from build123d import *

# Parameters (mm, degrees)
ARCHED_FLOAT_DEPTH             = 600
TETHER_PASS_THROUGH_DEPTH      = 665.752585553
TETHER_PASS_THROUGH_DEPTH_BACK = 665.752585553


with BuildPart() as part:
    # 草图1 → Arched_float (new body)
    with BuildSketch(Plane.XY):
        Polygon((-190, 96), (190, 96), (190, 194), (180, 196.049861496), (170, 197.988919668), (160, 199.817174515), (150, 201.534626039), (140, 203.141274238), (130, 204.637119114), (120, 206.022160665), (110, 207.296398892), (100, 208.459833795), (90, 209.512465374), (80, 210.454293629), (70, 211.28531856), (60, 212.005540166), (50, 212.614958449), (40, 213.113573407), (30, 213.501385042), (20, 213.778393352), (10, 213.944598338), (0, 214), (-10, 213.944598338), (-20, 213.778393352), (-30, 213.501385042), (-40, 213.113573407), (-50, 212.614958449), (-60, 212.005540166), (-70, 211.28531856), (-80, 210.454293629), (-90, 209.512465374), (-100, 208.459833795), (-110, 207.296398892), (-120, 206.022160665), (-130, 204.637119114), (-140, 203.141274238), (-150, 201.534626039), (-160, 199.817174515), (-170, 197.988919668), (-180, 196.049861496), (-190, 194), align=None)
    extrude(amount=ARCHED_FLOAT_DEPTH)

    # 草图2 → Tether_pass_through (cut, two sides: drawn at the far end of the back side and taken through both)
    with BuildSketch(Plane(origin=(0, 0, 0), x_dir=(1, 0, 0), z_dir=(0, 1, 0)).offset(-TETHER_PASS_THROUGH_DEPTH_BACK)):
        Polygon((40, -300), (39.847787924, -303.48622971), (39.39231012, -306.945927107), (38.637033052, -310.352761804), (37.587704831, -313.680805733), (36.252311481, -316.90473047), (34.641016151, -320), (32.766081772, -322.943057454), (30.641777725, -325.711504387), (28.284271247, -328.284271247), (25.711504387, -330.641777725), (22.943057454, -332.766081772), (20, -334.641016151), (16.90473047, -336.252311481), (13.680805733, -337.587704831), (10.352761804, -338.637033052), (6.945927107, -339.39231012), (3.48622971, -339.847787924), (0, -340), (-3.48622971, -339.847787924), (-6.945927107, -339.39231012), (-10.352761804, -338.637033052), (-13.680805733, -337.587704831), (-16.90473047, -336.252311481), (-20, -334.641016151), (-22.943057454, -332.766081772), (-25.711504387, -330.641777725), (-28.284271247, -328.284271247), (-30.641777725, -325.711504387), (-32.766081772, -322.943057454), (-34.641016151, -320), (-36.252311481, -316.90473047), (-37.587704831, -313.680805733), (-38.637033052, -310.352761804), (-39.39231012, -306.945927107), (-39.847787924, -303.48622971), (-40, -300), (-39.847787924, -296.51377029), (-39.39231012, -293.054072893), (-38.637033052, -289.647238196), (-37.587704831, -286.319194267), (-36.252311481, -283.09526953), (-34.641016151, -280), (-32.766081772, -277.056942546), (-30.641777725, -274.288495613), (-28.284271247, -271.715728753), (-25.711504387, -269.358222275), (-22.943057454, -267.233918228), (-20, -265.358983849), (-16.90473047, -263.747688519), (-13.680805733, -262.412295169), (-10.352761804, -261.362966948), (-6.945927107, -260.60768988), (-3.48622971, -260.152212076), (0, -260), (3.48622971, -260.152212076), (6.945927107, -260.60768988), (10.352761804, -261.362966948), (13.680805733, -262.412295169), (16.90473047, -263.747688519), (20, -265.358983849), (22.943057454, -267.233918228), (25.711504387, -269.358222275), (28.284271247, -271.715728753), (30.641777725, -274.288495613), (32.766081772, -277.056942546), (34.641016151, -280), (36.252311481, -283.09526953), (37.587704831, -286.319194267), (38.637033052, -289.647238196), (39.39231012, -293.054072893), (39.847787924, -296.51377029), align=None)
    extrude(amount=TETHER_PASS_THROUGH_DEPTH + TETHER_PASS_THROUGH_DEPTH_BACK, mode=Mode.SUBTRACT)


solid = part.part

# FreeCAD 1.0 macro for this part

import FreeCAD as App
import Part
import Sketcher

V = App.Vector
Q = App.Units.Quantity

doc = App.newDocument("Part")
body = doc.addObject("PartDesign::Body", "Body")

sketch1 = body.newObject("Sketcher::SketchObject", "Sketch")
sketch1.AttachmentSupport = (doc.getObject("XY_Plane"), [""])
sketch1.MapMode = "FlatFace"
sketch1.addGeometry(Part.LineSegment(V(-190, 96, 0), V(190, 96, 0)), False)
sketch1.addGeometry(Part.LineSegment(V(190, 96, 0), V(190, 194, 0)), False)
sketch1.addGeometry(Part.LineSegment(V(190, 194, 0), V(180, 196.049861, 0)), False)
sketch1.addGeometry(Part.LineSegment(V(180, 196.049861, 0), V(170, 197.98892, 0)), False)
sketch1.addGeometry(Part.LineSegment(V(170, 197.98892, 0), V(160, 199.817175, 0)), False)
sketch1.addGeometry(Part.LineSegment(V(160, 199.817175, 0), V(150, 201.534626, 0)), False)
sketch1.addGeometry(Part.LineSegment(V(150, 201.534626, 0), V(140, 203.141274, 0)), False)
sketch1.addGeometry(Part.LineSegment(V(140, 203.141274, 0), V(130, 204.637119, 0)), False)
sketch1.addGeometry(Part.LineSegment(V(130, 204.637119, 0), V(120, 206.022161, 0)), False)
sketch1.addGeometry(Part.LineSegment(V(120, 206.022161, 0), V(110, 207.296399, 0)), False)
sketch1.addGeometry(Part.LineSegment(V(110, 207.296399, 0), V(100, 208.459834, 0)), False)
sketch1.addGeometry(Part.LineSegment(V(100, 208.459834, 0), V(90, 209.512465, 0)), False)
sketch1.addGeometry(Part.LineSegment(V(90, 209.512465, 0), V(80, 210.454294, 0)), False)
sketch1.addGeometry(Part.LineSegment(V(80, 210.454294, 0), V(70, 211.285319, 0)), False)
sketch1.addGeometry(Part.LineSegment(V(70, 211.285319, 0), V(60, 212.00554, 0)), False)
sketch1.addGeometry(Part.LineSegment(V(60, 212.00554, 0), V(50, 212.614958, 0)), False)
sketch1.addGeometry(Part.LineSegment(V(50, 212.614958, 0), V(40, 213.113573, 0)), False)
sketch1.addGeometry(Part.LineSegment(V(40, 213.113573, 0), V(30, 213.501385, 0)), False)
sketch1.addGeometry(Part.LineSegment(V(30, 213.501385, 0), V(20, 213.778393, 0)), False)
sketch1.addGeometry(Part.LineSegment(V(20, 213.778393, 0), V(10, 213.944598, 0)), False)
sketch1.addGeometry(Part.LineSegment(V(10, 213.944598, 0), V(0, 214, 0)), False)
sketch1.addGeometry(Part.LineSegment(V(0, 214, 0), V(-10, 213.944598, 0)), False)
sketch1.addGeometry(Part.LineSegment(V(-10, 213.944598, 0), V(-20, 213.778393, 0)), False)
sketch1.addGeometry(Part.LineSegment(V(-20, 213.778393, 0), V(-30, 213.501385, 0)), False)
sketch1.addGeometry(Part.LineSegment(V(-30, 213.501385, 0), V(-40, 213.113573, 0)), False)
sketch1.addGeometry(Part.LineSegment(V(-40, 213.113573, 0), V(-50, 212.614958, 0)), False)
sketch1.addGeometry(Part.LineSegment(V(-50, 212.614958, 0), V(-60, 212.00554, 0)), False)
sketch1.addGeometry(Part.LineSegment(V(-60, 212.00554, 0), V(-70, 211.285319, 0)), False)
sketch1.addGeometry(Part.LineSegment(V(-70, 211.285319, 0), V(-80, 210.454294, 0)), False)
sketch1.addGeometry(Part.LineSegment(V(-80, 210.454294, 0), V(-90, 209.512465, 0)), False)
sketch1.addGeometry(Part.LineSegment(V(-90, 209.512465, 0), V(-100, 208.459834, 0)), False)
sketch1.addGeometry(Part.LineSegment(V(-100, 208.459834, 0), V(-110, 207.296399, 0)), False)
sketch1.addGeometry(Part.LineSegment(V(-110, 207.296399, 0), V(-120, 206.022161, 0)), False)
sketch1.addGeometry(Part.LineSegment(V(-120, 206.022161, 0), V(-130, 204.637119, 0)), False)
sketch1.addGeometry(Part.LineSegment(V(-130, 204.637119, 0), V(-140, 203.141274, 0)), False)
sketch1.addGeometry(Part.LineSegment(V(-140, 203.141274, 0), V(-150, 201.534626, 0)), False)
sketch1.addGeometry(Part.LineSegment(V(-150, 201.534626, 0), V(-160, 199.817175, 0)), False)
sketch1.addGeometry(Part.LineSegment(V(-160, 199.817175, 0), V(-170, 197.98892, 0)), False)
sketch1.addGeometry(Part.LineSegment(V(-170, 197.98892, 0), V(-180, 196.049861, 0)), False)
sketch1.addGeometry(Part.LineSegment(V(-180, 196.049861, 0), V(-190, 194, 0)), False)
sketch1.addGeometry(Part.LineSegment(V(-190, 194, 0), V(-190, 96, 0)), False)
sketch1.addConstraint(Sketcher.Constraint("Coincident", 0, 2, 1, 1))
sketch1.addConstraint(Sketcher.Constraint("Coincident", 1, 2, 2, 1))
sketch1.addConstraint(Sketcher.Constraint("Coincident", 2, 2, 3, 1))
sketch1.addConstraint(Sketcher.Constraint("Coincident", 3, 2, 4, 1))
sketch1.addConstraint(Sketcher.Constraint("Coincident", 4, 2, 5, 1))
sketch1.addConstraint(Sketcher.Constraint("Coincident", 5, 2, 6, 1))
sketch1.addConstraint(Sketcher.Constraint("Coincident", 6, 2, 7, 1))
sketch1.addConstraint(Sketcher.Constraint("Coincident", 7, 2, 8, 1))
sketch1.addConstraint(Sketcher.Constraint("Coincident", 8, 2, 9, 1))
sketch1.addConstraint(Sketcher.Constraint("Coincident", 9, 2, 10, 1))
sketch1.addConstraint(Sketcher.Constraint("Coincident", 10, 2, 11, 1))
sketch1.addConstraint(Sketcher.Constraint("Coincident", 11, 2, 12, 1))
sketch1.addConstraint(Sketcher.Constraint("Coincident", 12, 2, 13, 1))
sketch1.addConstraint(Sketcher.Constraint("Coincident", 13, 2, 14, 1))
sketch1.addConstraint(Sketcher.Constraint("Coincident", 14, 2, 15, 1))
sketch1.addConstraint(Sketcher.Constraint("Coincident", 15, 2, 16, 1))
sketch1.addConstraint(Sketcher.Constraint("Coincident", 16, 2, 17, 1))
sketch1.addConstraint(Sketcher.Constraint("Coincident", 17, 2, 18, 1))
sketch1.addConstraint(Sketcher.Constraint("Coincident", 18, 2, 19, 1))
sketch1.addConstraint(Sketcher.Constraint("Coincident", 19, 2, 20, 1))
sketch1.addConstraint(Sketcher.Constraint("Coincident", 20, 2, 21, 1))
sketch1.addConstraint(Sketcher.Constraint("Coincident", 21, 2, 22, 1))
sketch1.addConstraint(Sketcher.Constraint("Coincident", 22, 2, 23, 1))
sketch1.addConstraint(Sketcher.Constraint("Coincident", 23, 2, 24, 1))
sketch1.addConstraint(Sketcher.Constraint("Coincident", 24, 2, 25, 1))
sketch1.addConstraint(Sketcher.Constraint("Coincident", 25, 2, 26, 1))
sketch1.addConstraint(Sketcher.Constraint("Coincident", 26, 2, 27, 1))
sketch1.addConstraint(Sketcher.Constraint("Coincident", 27, 2, 28, 1))
sketch1.addConstraint(Sketcher.Constraint("Coincident", 28, 2, 29, 1))
sketch1.addConstraint(Sketcher.Constraint("Coincident", 29, 2, 30, 1))
sketch1.addConstraint(Sketcher.Constraint("Coincident", 30, 2, 31, 1))
sketch1.addConstraint(Sketcher.Constraint("Coincident", 31, 2, 32, 1))
sketch1.addConstraint(Sketcher.Constraint("Coincident", 32, 2, 33, 1))
sketch1.addConstraint(Sketcher.Constraint("Coincident", 33, 2, 34, 1))
sketch1.addConstraint(Sketcher.Constraint("Coincident", 34, 2, 35, 1))
sketch1.addConstraint(Sketcher.Constraint("Coincident", 35, 2, 36, 1))
sketch1.addConstraint(Sketcher.Constraint("Coincident", 36, 2, 37, 1))
sketch1.addConstraint(Sketcher.Constraint("Coincident", 37, 2, 38, 1))
sketch1.addConstraint(Sketcher.Constraint("Coincident", 38, 2, 39, 1))
sketch1.addConstraint(Sketcher.Constraint("Coincident", 39, 2, 40, 1))
sketch1.addConstraint(Sketcher.Constraint("Coincident", 40, 2, 0, 1))
sketch1.addConstraint(Sketcher.Constraint("Horizontal", 0))
sketch1.addConstraint(Sketcher.Constraint("Vertical", 1))
sketch1.addConstraint(Sketcher.Constraint("Vertical", 40))
sketch1.addConstraint(Sketcher.Constraint("Symmetric", 19, 2, 21, 2, -2))
sketch1.addConstraint(Sketcher.Constraint("Symmetric", 18, 2, 22, 2, -2))
sketch1.addConstraint(Sketcher.Constraint("Symmetric", 17, 2, 23, 2, -2))
sketch1.addConstraint(Sketcher.Constraint("Symmetric", 16, 2, 24, 2, -2))
sketch1.addConstraint(Sketcher.Constraint("Symmetric", 15, 2, 25, 2, -2))
sketch1.addConstraint(Sketcher.Constraint("Symmetric", 14, 2, 26, 2, -2))
sketch1.addConstraint(Sketcher.Constraint("Symmetric", 13, 2, 27, 2, -2))
sketch1.addConstraint(Sketcher.Constraint("Symmetric", 12, 2, 28, 2, -2))
sketch1.addConstraint(Sketcher.Constraint("Symmetric", 11, 2, 29, 2, -2))
sketch1.addConstraint(Sketcher.Constraint("Symmetric", 10, 2, 30, 2, -2))
sketch1.addConstraint(Sketcher.Constraint("Symmetric", 9, 2, 31, 2, -2))
sketch1.addConstraint(Sketcher.Constraint("Symmetric", 8, 2, 32, 2, -2))
sketch1.addConstraint(Sketcher.Constraint("Symmetric", 7, 2, 33, 2, -2))
sketch1.addConstraint(Sketcher.Constraint("Symmetric", 6, 2, 34, 2, -2))
sketch1.addConstraint(Sketcher.Constraint("Symmetric", 5, 2, 35, 2, -2))
sketch1.addConstraint(Sketcher.Constraint("Symmetric", 4, 2, 36, 2, -2))
sketch1.addConstraint(Sketcher.Constraint("Symmetric", 3, 2, 37, 2, -2))
sketch1.addConstraint(Sketcher.Constraint("Symmetric", 2, 2, 38, 2, -2))
sketch1.addConstraint(Sketcher.Constraint("Symmetric", 1, 2, 39, 2, -2))
sketch1.addConstraint(Sketcher.Constraint("PointOnObject", 20, 2, -2))
sketch1.addConstraint(Sketcher.Constraint("DistanceX", 0, 1, 0, 2, 380.0))
sketch1.addConstraint(Sketcher.Constraint("DistanceY", 1, 1, 1, 2, 98.0))
sketch1.addConstraint(Sketcher.Constraint("DistanceY", -1, 1, 0, 2, 96.0))
sketch1.addConstraint(Sketcher.Constraint("DistanceX", -1, 1, 2, 2, 180.0))
sketch1.addConstraint(Sketcher.Constraint("DistanceX", -1, 1, 3, 2, 170.0))
sketch1.addConstraint(Sketcher.Constraint("DistanceX", -1, 1, 4, 2, 160.0))
sketch1.addConstraint(Sketcher.Constraint("DistanceX", -1, 1, 5, 2, 150.0))
sketch1.addConstraint(Sketcher.Constraint("DistanceX", -1, 1, 6, 2, 140.0))
sketch1.addConstraint(Sketcher.Constraint("DistanceX", -1, 1, 7, 2, 130.0))
sketch1.addConstraint(Sketcher.Constraint("DistanceX", -1, 1, 8, 2, 120.0))
sketch1.addConstraint(Sketcher.Constraint("DistanceX", -1, 1, 9, 2, 110.0))
sketch1.addConstraint(Sketcher.Constraint("DistanceX", -1, 1, 10, 2, 100.0))
sketch1.addConstraint(Sketcher.Constraint("DistanceX", -1, 1, 11, 2, 90.0))
sketch1.addConstraint(Sketcher.Constraint("DistanceX", -1, 1, 12, 2, 80.0))
sketch1.addConstraint(Sketcher.Constraint("DistanceX", -1, 1, 13, 2, 70.0))
sketch1.addConstraint(Sketcher.Constraint("DistanceX", -1, 1, 14, 2, 60.0))
sketch1.addConstraint(Sketcher.Constraint("DistanceX", -1, 1, 15, 2, 50.0))
sketch1.addConstraint(Sketcher.Constraint("DistanceX", -1, 1, 16, 2, 40.0))
sketch1.addConstraint(Sketcher.Constraint("DistanceX", -1, 1, 17, 2, 30.0))
sketch1.addConstraint(Sketcher.Constraint("DistanceX", -1, 1, 18, 2, 20.0))
sketch1.addConstraint(Sketcher.Constraint("DistanceX", -1, 1, 19, 2, 10.0))
sketch1.addConstraint(Sketcher.Constraint("DistanceY", -1, 1, 20, 2, 214.0))
sketch1.addConstraint(Sketcher.Constraint("DistanceY", -1, 1, 9, 2, 207.296399))
sketch1.addConstraint(Sketcher.Constraint("DistanceY", -1, 1, 19, 2, 213.944598))
sketch1.addConstraint(Sketcher.Constraint("DistanceY", 4, 2, 6, 2, 3.3241))
sketch1.addConstraint(Sketcher.Constraint("DistanceY", 3, 2, 7, 2, 6.648199))
sketch1.addConstraint(Sketcher.Constraint("Distance", 5, 10.14641))
sketch1.addConstraint(Sketcher.Constraint("Distance", 7, 10.111259))
sketch1.addConstraint(Sketcher.Constraint("Distance", 8, 10.095461))
sketch1.addConstraint(Sketcher.Constraint("Distance", 10, 10.067452))
sketch1.addConstraint(Sketcher.Constraint("Distance", 11, 10.055249))
sketch1.addConstraint(Sketcher.Constraint("Distance", 13, 10.034471))
sketch1.addConstraint(Sketcher.Constraint("Distance", 19, 10.001381))
sketch1.addConstraint(Sketcher.Constraint("DistanceY", -1, 1, 2, 2, 196.049861))
sketch1.addConstraint(Sketcher.Constraint("DistanceY", -1, 1, 3, 2, 197.98892))
sketch1.addConstraint(Sketcher.Constraint("DistanceY", -1, 1, 13, 2, 211.285319))
sketch1.addConstraint(Sketcher.Constraint("DistanceY", -1, 1, 14, 2, 212.00554))
sketch1.addConstraint(Sketcher.Constraint("DistanceY", -1, 1, 15, 2, 212.614958))
sketch1.addConstraint(Sketcher.Constraint("DistanceY", 12, 2, 16, 2, 2.65928))
sketch1.addConstraint(Sketcher.Constraint("DistanceY", 16, 2, 17, 2, 0.387812))
pad1 = body.newObject("PartDesign::Pad", "Pad")
pad1.Profile = sketch1
pad1.Length = 600

sketch2 = body.newObject("Sketcher::SketchObject", "Sketch001")
sketch2.AttachmentSupport = (doc.getObject("XZ_Plane"), [""])
sketch2.MapMode = "FlatFace"
sketch2.addGeometry(Part.LineSegment(V(39.847788, 303.48623, 0), V(40, 300, 0)), False)
sketch2.addGeometry(Part.LineSegment(V(40, 300, 0), V(39.847788, 296.51377, 0)), False)
sketch2.addGeometry(Part.LineSegment(V(39.847788, 296.51377, 0), V(39.39231, 293.054073, 0)), False)
sketch2.addGeometry(Part.LineSegment(V(39.39231, 293.054073, 0), V(38.637033, 289.647238, 0)), False)
sketch2.addGeometry(Part.LineSegment(V(38.637033, 289.647238, 0), V(37.587705, 286.319194, 0)), False)
sketch2.addGeometry(Part.LineSegment(V(37.587705, 286.319194, 0), V(36.252311, 283.09527, 0)), False)
sketch2.addGeometry(Part.LineSegment(V(36.252311, 283.09527, 0), V(34.641016, 280, 0)), False)
sketch2.addGeometry(Part.LineSegment(V(34.641016, 280, 0), V(32.766082, 277.056943, 0)), False)
sketch2.addGeometry(Part.LineSegment(V(32.766082, 277.056943, 0), V(30.641778, 274.288496, 0)), False)
sketch2.addGeometry(Part.LineSegment(V(30.641778, 274.288496, 0), V(28.284271, 271.715729, 0)), False)
sketch2.addGeometry(Part.LineSegment(V(28.284271, 271.715729, 0), V(25.711504, 269.358222, 0)), False)
sketch2.addGeometry(Part.LineSegment(V(25.711504, 269.358222, 0), V(22.943057, 267.233918, 0)), False)
sketch2.addGeometry(Part.LineSegment(V(22.943057, 267.233918, 0), V(20, 265.358984, 0)), False)
sketch2.addGeometry(Part.LineSegment(V(20, 265.358984, 0), V(16.90473, 263.747689, 0)), False)
sketch2.addGeometry(Part.LineSegment(V(16.90473, 263.747689, 0), V(13.680806, 262.412295, 0)), False)
sketch2.addGeometry(Part.LineSegment(V(13.680806, 262.412295, 0), V(10.352762, 261.362967, 0)), False)
sketch2.addGeometry(Part.LineSegment(V(10.352762, 261.362967, 0), V(6.945927, 260.60769, 0)), False)
sketch2.addGeometry(Part.LineSegment(V(6.945927, 260.60769, 0), V(3.48623, 260.152212, 0)), False)
sketch2.addGeometry(Part.LineSegment(V(3.48623, 260.152212, 0), V(0, 260, 0)), False)
sketch2.addGeometry(Part.LineSegment(V(0, 260, 0), V(-3.48623, 260.152212, 0)), False)
sketch2.addGeometry(Part.LineSegment(V(-3.48623, 260.152212, 0), V(-6.945927, 260.60769, 0)), False)
sketch2.addGeometry(Part.LineSegment(V(-6.945927, 260.60769, 0), V(-10.352762, 261.362967, 0)), False)
sketch2.addGeometry(Part.LineSegment(V(-10.352762, 261.362967, 0), V(-13.680806, 262.412295, 0)), False)
sketch2.addGeometry(Part.LineSegment(V(-13.680806, 262.412295, 0), V(-16.90473, 263.747689, 0)), False)
sketch2.addGeometry(Part.LineSegment(V(-16.90473, 263.747689, 0), V(-20, 265.358984, 0)), False)
sketch2.addGeometry(Part.LineSegment(V(-20, 265.358984, 0), V(-22.943057, 267.233918, 0)), False)
sketch2.addGeometry(Part.LineSegment(V(-22.943057, 267.233918, 0), V(-25.711504, 269.358222, 0)), False)
sketch2.addGeometry(Part.LineSegment(V(-25.711504, 269.358222, 0), V(-28.284271, 271.715729, 0)), False)
sketch2.addGeometry(Part.LineSegment(V(-28.284271, 271.715729, 0), V(-30.641778, 274.288496, 0)), False)
sketch2.addGeometry(Part.LineSegment(V(-30.641778, 274.288496, 0), V(-32.766082, 277.056943, 0)), False)
sketch2.addGeometry(Part.LineSegment(V(-32.766082, 277.056943, 0), V(-34.641016, 280, 0)), False)
sketch2.addGeometry(Part.LineSegment(V(-34.641016, 280, 0), V(-36.252311, 283.09527, 0)), False)
sketch2.addGeometry(Part.LineSegment(V(-36.252311, 283.09527, 0), V(-37.587705, 286.319194, 0)), False)
sketch2.addGeometry(Part.LineSegment(V(-37.587705, 286.319194, 0), V(-38.637033, 289.647238, 0)), False)
sketch2.addGeometry(Part.LineSegment(V(-38.637033, 289.647238, 0), V(-39.39231, 293.054073, 0)), False)
sketch2.addGeometry(Part.LineSegment(V(-39.39231, 293.054073, 0), V(-39.847788, 296.51377, 0)), False)
sketch2.addGeometry(Part.LineSegment(V(-39.847788, 296.51377, 0), V(-40, 300, 0)), False)
sketch2.addGeometry(Part.LineSegment(V(-40, 300, 0), V(-39.847788, 303.48623, 0)), False)
sketch2.addGeometry(Part.LineSegment(V(-39.847788, 303.48623, 0), V(-39.39231, 306.945927, 0)), False)
sketch2.addGeometry(Part.LineSegment(V(-39.39231, 306.945927, 0), V(-38.637033, 310.352762, 0)), False)
sketch2.addGeometry(Part.LineSegment(V(-38.637033, 310.352762, 0), V(-37.587705, 313.680806, 0)), False)
sketch2.addGeometry(Part.LineSegment(V(-37.587705, 313.680806, 0), V(-36.252311, 316.90473, 0)), False)
sketch2.addGeometry(Part.LineSegment(V(-36.252311, 316.90473, 0), V(-34.641016, 320, 0)), False)
sketch2.addGeometry(Part.LineSegment(V(-34.641016, 320, 0), V(-32.766082, 322.943057, 0)), False)
sketch2.addGeometry(Part.LineSegment(V(-32.766082, 322.943057, 0), V(-30.641778, 325.711504, 0)), False)
sketch2.addGeometry(Part.LineSegment(V(-30.641778, 325.711504, 0), V(-28.284271, 328.284271, 0)), False)
sketch2.addGeometry(Part.LineSegment(V(-28.284271, 328.284271, 0), V(-25.711504, 330.641778, 0)), False)
sketch2.addGeometry(Part.LineSegment(V(-25.711504, 330.641778, 0), V(-22.943057, 332.766082, 0)), False)
sketch2.addGeometry(Part.LineSegment(V(-22.943057, 332.766082, 0), V(-20, 334.641016, 0)), False)
sketch2.addGeometry(Part.LineSegment(V(-20, 334.641016, 0), V(-16.90473, 336.252311, 0)), False)
sketch2.addGeometry(Part.LineSegment(V(-16.90473, 336.252311, 0), V(-13.680806, 337.587705, 0)), False)
sketch2.addGeometry(Part.LineSegment(V(-13.680806, 337.587705, 0), V(-10.352762, 338.637033, 0)), False)
sketch2.addGeometry(Part.LineSegment(V(-10.352762, 338.637033, 0), V(-6.945927, 339.39231, 0)), False)
sketch2.addGeometry(Part.LineSegment(V(-6.945927, 339.39231, 0), V(-3.48623, 339.847788, 0)), False)
sketch2.addGeometry(Part.LineSegment(V(-3.48623, 339.847788, 0), V(0, 340, 0)), False)
sketch2.addGeometry(Part.LineSegment(V(0, 340, 0), V(3.48623, 339.847788, 0)), False)
sketch2.addGeometry(Part.LineSegment(V(3.48623, 339.847788, 0), V(6.945927, 339.39231, 0)), False)
sketch2.addGeometry(Part.LineSegment(V(6.945927, 339.39231, 0), V(10.352762, 338.637033, 0)), False)
sketch2.addGeometry(Part.LineSegment(V(10.352762, 338.637033, 0), V(13.680806, 337.587705, 0)), False)
sketch2.addGeometry(Part.LineSegment(V(13.680806, 337.587705, 0), V(16.90473, 336.252311, 0)), False)
sketch2.addGeometry(Part.LineSegment(V(16.90473, 336.252311, 0), V(20, 334.641016, 0)), False)
sketch2.addGeometry(Part.LineSegment(V(20, 334.641016, 0), V(22.943057, 332.766082, 0)), False)
sketch2.addGeometry(Part.LineSegment(V(22.943057, 332.766082, 0), V(25.711504, 330.641778, 0)), False)
sketch2.addGeometry(Part.LineSegment(V(25.711504, 330.641778, 0), V(28.284271, 328.284271, 0)), False)
sketch2.addGeometry(Part.LineSegment(V(28.284271, 328.284271, 0), V(30.641778, 325.711504, 0)), False)
sketch2.addGeometry(Part.LineSegment(V(30.641778, 325.711504, 0), V(32.766082, 322.943057, 0)), False)
sketch2.addGeometry(Part.LineSegment(V(32.766082, 322.943057, 0), V(34.641016, 320, 0)), False)
sketch2.addGeometry(Part.LineSegment(V(34.641016, 320, 0), V(36.252311, 316.90473, 0)), False)
sketch2.addGeometry(Part.LineSegment(V(36.252311, 316.90473, 0), V(37.587705, 313.680806, 0)), False)
sketch2.addGeometry(Part.LineSegment(V(37.587705, 313.680806, 0), V(38.637033, 310.352762, 0)), False)
sketch2.addGeometry(Part.LineSegment(V(38.637033, 310.352762, 0), V(39.39231, 306.945927, 0)), False)
sketch2.addGeometry(Part.LineSegment(V(39.39231, 306.945927, 0), V(39.847788, 303.48623, 0)), False)
sketch2.addConstraint(Sketcher.Constraint("Coincident", 0, 2, 1, 1))
sketch2.addConstraint(Sketcher.Constraint("Coincident", 1, 2, 2, 1))
sketch2.addConstraint(Sketcher.Constraint("Coincident", 2, 2, 3, 1))
sketch2.addConstraint(Sketcher.Constraint("Coincident", 3, 2, 4, 1))
sketch2.addConstraint(Sketcher.Constraint("Coincident", 4, 2, 5, 1))
sketch2.addConstraint(Sketcher.Constraint("Coincident", 5, 2, 6, 1))
sketch2.addConstraint(Sketcher.Constraint("Coincident", 6, 2, 7, 1))
sketch2.addConstraint(Sketcher.Constraint("Coincident", 7, 2, 8, 1))
sketch2.addConstraint(Sketcher.Constraint("Coincident", 8, 2, 9, 1))
sketch2.addConstraint(Sketcher.Constraint("Coincident", 9, 2, 10, 1))
sketch2.addConstraint(Sketcher.Constraint("Coincident", 10, 2, 11, 1))
sketch2.addConstraint(Sketcher.Constraint("Coincident", 11, 2, 12, 1))
sketch2.addConstraint(Sketcher.Constraint("Coincident", 12, 2, 13, 1))
sketch2.addConstraint(Sketcher.Constraint("Coincident", 13, 2, 14, 1))
sketch2.addConstraint(Sketcher.Constraint("Coincident", 14, 2, 15, 1))
sketch2.addConstraint(Sketcher.Constraint("Coincident", 15, 2, 16, 1))
sketch2.addConstraint(Sketcher.Constraint("Coincident", 16, 2, 17, 1))
sketch2.addConstraint(Sketcher.Constraint("Coincident", 17, 2, 18, 1))
sketch2.addConstraint(Sketcher.Constraint("Coincident", 18, 2, 19, 1))
sketch2.addConstraint(Sketcher.Constraint("Coincident", 19, 2, 20, 1))
sketch2.addConstraint(Sketcher.Constraint("Coincident", 20, 2, 21, 1))
sketch2.addConstraint(Sketcher.Constraint("Coincident", 21, 2, 22, 1))
sketch2.addConstraint(Sketcher.Constraint("Coincident", 22, 2, 23, 1))
sketch2.addConstraint(Sketcher.Constraint("Coincident", 23, 2, 24, 1))
sketch2.addConstraint(Sketcher.Constraint("Coincident", 24, 2, 25, 1))
sketch2.addConstraint(Sketcher.Constraint("Coincident", 25, 2, 26, 1))
sketch2.addConstraint(Sketcher.Constraint("Coincident", 26, 2, 27, 1))
sketch2.addConstraint(Sketcher.Constraint("Coincident", 27, 2, 28, 1))
sketch2.addConstraint(Sketcher.Constraint("Coincident", 28, 2, 29, 1))
sketch2.addConstraint(Sketcher.Constraint("Coincident", 29, 2, 30, 1))
sketch2.addConstraint(Sketcher.Constraint("Coincident", 30, 2, 31, 1))
sketch2.addConstraint(Sketcher.Constraint("Coincident", 31, 2, 32, 1))
sketch2.addConstraint(Sketcher.Constraint("Coincident", 32, 2, 33, 1))
sketch2.addConstraint(Sketcher.Constraint("Coincident", 33, 2, 34, 1))
sketch2.addConstraint(Sketcher.Constraint("Coincident", 34, 2, 35, 1))
sketch2.addConstraint(Sketcher.Constraint("Coincident", 35, 2, 36, 1))
sketch2.addConstraint(Sketcher.Constraint("Coincident", 36, 2, 37, 1))
sketch2.addConstraint(Sketcher.Constraint("Coincident", 37, 2, 38, 1))
sketch2.addConstraint(Sketcher.Constraint("Coincident", 38, 2, 39, 1))
sketch2.addConstraint(Sketcher.Constraint("Coincident", 39, 2, 40, 1))
sketch2.addConstraint(Sketcher.Constraint("Coincident", 40, 2, 41, 1))
sketch2.addConstraint(Sketcher.Constraint("Coincident", 41, 2, 42, 1))
sketch2.addConstraint(Sketcher.Constraint("Coincident", 42, 2, 43, 1))
sketch2.addConstraint(Sketcher.Constraint("Coincident", 43, 2, 44, 1))
sketch2.addConstraint(Sketcher.Constraint("Coincident", 44, 2, 45, 1))
sketch2.addConstraint(Sketcher.Constraint("Coincident", 45, 2, 46, 1))
sketch2.addConstraint(Sketcher.Constraint("Coincident", 46, 2, 47, 1))
sketch2.addConstraint(Sketcher.Constraint("Coincident", 47, 2, 48, 1))
sketch2.addConstraint(Sketcher.Constraint("Coincident", 48, 2, 49, 1))
sketch2.addConstraint(Sketcher.Constraint("Coincident", 49, 2, 50, 1))
sketch2.addConstraint(Sketcher.Constraint("Coincident", 50, 2, 51, 1))
sketch2.addConstraint(Sketcher.Constraint("Coincident", 51, 2, 52, 1))
sketch2.addConstraint(Sketcher.Constraint("Coincident", 52, 2, 53, 1))
sketch2.addConstraint(Sketcher.Constraint("Coincident", 53, 2, 54, 1))
sketch2.addConstraint(Sketcher.Constraint("Coincident", 54, 2, 55, 1))
sketch2.addConstraint(Sketcher.Constraint("Coincident", 55, 2, 56, 1))
sketch2.addConstraint(Sketcher.Constraint("Coincident", 56, 2, 57, 1))
sketch2.addConstraint(Sketcher.Constraint("Coincident", 57, 2, 58, 1))
sketch2.addConstraint(Sketcher.Constraint("Coincident", 58, 2, 59, 1))
sketch2.addConstraint(Sketcher.Constraint("Coincident", 59, 2, 60, 1))
sketch2.addConstraint(Sketcher.Constraint("Coincident", 60, 2, 61, 1))
sketch2.addConstraint(Sketcher.Constraint("Coincident", 61, 2, 62, 1))
sketch2.addConstraint(Sketcher.Constraint("Coincident", 62, 2, 63, 1))
sketch2.addConstraint(Sketcher.Constraint("Coincident", 63, 2, 64, 1))
sketch2.addConstraint(Sketcher.Constraint("Coincident", 64, 2, 65, 1))
sketch2.addConstraint(Sketcher.Constraint("Coincident", 65, 2, 66, 1))
sketch2.addConstraint(Sketcher.Constraint("Coincident", 66, 2, 67, 1))
sketch2.addConstraint(Sketcher.Constraint("Coincident", 67, 2, 68, 1))
sketch2.addConstraint(Sketcher.Constraint("Coincident", 68, 2, 69, 1))
sketch2.addConstraint(Sketcher.Constraint("Coincident", 69, 2, 70, 1))
sketch2.addConstraint(Sketcher.Constraint("Coincident", 70, 2, 71, 1))
sketch2.addConstraint(Sketcher.Constraint("Coincident", 71, 2, 0, 1))
sketch2.addConstraint(Sketcher.Constraint("Symmetric", 17, 2, 19, 2, -2))
sketch2.addConstraint(Sketcher.Constraint("Symmetric", 16, 2, 20, 2, -2))
sketch2.addConstraint(Sketcher.Constraint("Symmetric", 15, 2, 21, 2, -2))
sketch2.addConstraint(Sketcher.Constraint("Symmetric", 14, 2, 22, 2, -2))
sketch2.addConstraint(Sketcher.Constraint("Symmetric", 13, 2, 23, 2, -2))
sketch2.addConstraint(Sketcher.Constraint("Symmetric", 12, 2, 24, 2, -2))
sketch2.addConstraint(Sketcher.Constraint("Symmetric", 11, 2, 25, 2, -2))
sketch2.addConstraint(Sketcher.Constraint("Symmetric", 10, 2, 26, 2, -2))
sketch2.addConstraint(Sketcher.Constraint("Symmetric", 9, 2, 27, 2, -2))
sketch2.addConstraint(Sketcher.Constraint("Symmetric", 8, 2, 28, 2, -2))
sketch2.addConstraint(Sketcher.Constraint("Symmetric", 7, 2, 29, 2, -2))
sketch2.addConstraint(Sketcher.Constraint("Symmetric", 6, 2, 30, 2, -2))
sketch2.addConstraint(Sketcher.Constraint("Symmetric", 5, 2, 31, 2, -2))
sketch2.addConstraint(Sketcher.Constraint("Symmetric", 4, 2, 32, 2, -2))
sketch2.addConstraint(Sketcher.Constraint("Symmetric", 3, 2, 33, 2, -2))
sketch2.addConstraint(Sketcher.Constraint("Symmetric", 2, 2, 34, 2, -2))
sketch2.addConstraint(Sketcher.Constraint("Symmetric", 1, 2, 35, 2, -2))
sketch2.addConstraint(Sketcher.Constraint("Symmetric", 0, 2, 36, 2, -2))
sketch2.addConstraint(Sketcher.Constraint("Symmetric", 53, 2, 55, 2, -2))
sketch2.addConstraint(Sketcher.Constraint("Symmetric", 52, 2, 56, 2, -2))
sketch2.addConstraint(Sketcher.Constraint("Symmetric", 51, 2, 57, 2, -2))
sketch2.addConstraint(Sketcher.Constraint("Symmetric", 50, 2, 58, 2, -2))
sketch2.addConstraint(Sketcher.Constraint("Symmetric", 49, 2, 59, 2, -2))
sketch2.addConstraint(Sketcher.Constraint("Symmetric", 48, 2, 60, 2, -2))
sketch2.addConstraint(Sketcher.Constraint("Symmetric", 47, 2, 61, 2, -2))
sketch2.addConstraint(Sketcher.Constraint("Symmetric", 46, 2, 62, 2, -2))
sketch2.addConstraint(Sketcher.Constraint("Symmetric", 45, 2, 63, 2, -2))
sketch2.addConstraint(Sketcher.Constraint("Symmetric", 44, 2, 64, 2, -2))
sketch2.addConstraint(Sketcher.Constraint("Symmetric", 43, 2, 65, 2, -2))
sketch2.addConstraint(Sketcher.Constraint("Symmetric", 42, 2, 66, 2, -2))
sketch2.addConstraint(Sketcher.Constraint("Symmetric", 41, 2, 67, 2, -2))
sketch2.addConstraint(Sketcher.Constraint("Symmetric", 40, 2, 68, 2, -2))
sketch2.addConstraint(Sketcher.Constraint("Symmetric", 39, 2, 69, 2, -2))
sketch2.addConstraint(Sketcher.Constraint("Symmetric", 38, 2, 70, 2, -2))
sketch2.addConstraint(Sketcher.Constraint("Symmetric", 37, 2, 71, 2, -2))
sketch2.addConstraint(Sketcher.Constraint("PointOnObject", 18, 2, -2))
sketch2.addConstraint(Sketcher.Constraint("PointOnObject", 54, 2, -2))
sketch2.addConstraint(Sketcher.Constraint("Perpendicular", 0, 18))
sketch2.addConstraint(Sketcher.Constraint("Perpendicular", 1, 19))
sketch2.addConstraint(Sketcher.Constraint("Perpendicular", 2, 20))
sketch2.addConstraint(Sketcher.Constraint("Perpendicular", 3, 21))
sketch2.addConstraint(Sketcher.Constraint("Perpendicular", 4, 22))
sketch2.addConstraint(Sketcher.Constraint("Perpendicular", 5, 23))
sketch2.addConstraint(Sketcher.Constraint("Perpendicular", 6, 24))
sketch2.addConstraint(Sketcher.Constraint("Perpendicular", 7, 25))
sketch2.addConstraint(Sketcher.Constraint("Perpendicular", 8, 26))
sketch2.addConstraint(Sketcher.Constraint("Perpendicular", 9, 27))
sketch2.addConstraint(Sketcher.Constraint("Perpendicular", 20, 38))
sketch2.addConstraint(Sketcher.Constraint("Perpendicular", 21, 39))
sketch2.addConstraint(Sketcher.Constraint("Perpendicular", 22, 40))
sketch2.addConstraint(Sketcher.Constraint("Perpendicular", 23, 41))
sketch2.addConstraint(Sketcher.Constraint("Perpendicular", 24, 42))
sketch2.addConstraint(Sketcher.Constraint("Perpendicular", 25, 43))
sketch2.addConstraint(Sketcher.Constraint("Perpendicular", 26, 44))
sketch2.addConstraint(Sketcher.Constraint("Perpendicular", 27, 45))
sketch2.addConstraint(Sketcher.Constraint("Perpendicular", 28, 46))
sketch2.addConstraint(Sketcher.Constraint("Perpendicular", 29, 47))
sketch2.addConstraint(Sketcher.Constraint("Perpendicular", 30, 48))
sketch2.addConstraint(Sketcher.Constraint("Perpendicular", 31, 49))
sketch2.addConstraint(Sketcher.Constraint("Perpendicular", 32, 50))
sketch2.addConstraint(Sketcher.Constraint("Perpendicular", 33, 51))
sketch2.addConstraint(Sketcher.Constraint("Perpendicular", 34, 52))
sketch2.addConstraint(Sketcher.Constraint("Perpendicular", 35, 53))
sketch2.addConstraint(Sketcher.Constraint("Perpendicular", 36, 54))
sketch2.addConstraint(Sketcher.Constraint("Vertical", 35, 2, 37, 2))
sketch2.addConstraint(Sketcher.Constraint("Vertical", 34, 2, 38, 2))
sketch2.addConstraint(Sketcher.Constraint("Vertical", 33, 2, 39, 2))
sketch2.addConstraint(Sketcher.Constraint("Vertical", 32, 2, 40, 2))
sketch2.addConstraint(Sketcher.Constraint("Vertical", 31, 2, 41, 2))
sketch2.addConstraint(Sketcher.Constraint("Vertical", 30, 2, 42, 2))
sketch2.addConstraint(Sketcher.Constraint("Vertical", 29, 2, 43, 2))
sketch2.addConstraint(Sketcher.Constraint("Vertical", 28, 2, 44, 2))
sketch2.addConstraint(Sketcher.Constraint("Vertical", 27, 2, 45, 2))
sketch2.addConstraint(Sketcher.Constraint("Vertical", 26, 2, 46, 2))
sketch2.addConstraint(Sketcher.Constraint("Vertical", 25, 2, 47, 2))
sketch2.addConstraint(Sketcher.Constraint("Vertical", 24, 2, 48, 2))
sketch2.addConstraint(Sketcher.Constraint("Vertical", 23, 2, 49, 2))
sketch2.addConstraint(Sketcher.Constraint("Vertical", 22, 2, 50, 2))
sketch2.addConstraint(Sketcher.Constraint("Vertical", 21, 2, 51, 2))
sketch2.addConstraint(Sketcher.Constraint("Vertical", 20, 2, 52, 2))
sketch2.addConstraint(Sketcher.Constraint("Vertical", 19, 2, 53, 2))
sketch2.addConstraint(Sketcher.Constraint("Equal", 1, 2))
sketch2.addConstraint(Sketcher.Constraint("Equal", 2, 3))
sketch2.addConstraint(Sketcher.Constraint("Equal", 3, 4))
sketch2.addConstraint(Sketcher.Constraint("Equal", 4, 5))
sketch2.addConstraint(Sketcher.Constraint("Equal", 5, 6))
sketch2.addConstraint(Sketcher.Constraint("Equal", 6, 7))
sketch2.addConstraint(Sketcher.Constraint("Equal", 7, 8))
sketch2.addConstraint(Sketcher.Constraint("Equal", 8, 9))
sketch2.addConstraint(Sketcher.Constraint("Equal", 9, 10))
sketch2.addConstraint(Sketcher.Constraint("Equal", 10, 11))
sketch2.addConstraint(Sketcher.Constraint("Equal", 11, 12))
sketch2.addConstraint(Sketcher.Constraint("Equal", 12, 13))
sketch2.addConstraint(Sketcher.Constraint("Equal", 13, 14))
sketch2.addConstraint(Sketcher.Constraint("Equal", 14, 15))
sketch2.addConstraint(Sketcher.Constraint("Equal", 15, 16))
sketch2.addConstraint(Sketcher.Constraint("Equal", 16, 17))
sketch2.addConstraint(Sketcher.Constraint("Equal", 17, 18))
sketch2.addConstraint(Sketcher.Constraint("DistanceX", -1, 1, 0, 2, 40.0))
sketch2.addConstraint(Sketcher.Constraint("DistanceY", -1, 1, 0, 2, 300.0))
sketch2.addConstraint(Sketcher.Constraint("DistanceY", -1, 1, 6, 2, 280.0))
sketch2.addConstraint(Sketcher.Constraint("Angle", 0, Q("-87.5 deg")))
sketch2.addConstraint(Sketcher.Constraint("Angle", 2, Q("-97.5 deg")))
sketch2.addConstraint(Sketcher.Constraint("Angle", 3, Q("-102.5 deg")))
sketch2.addConstraint(Sketcher.Constraint("Angle", 4, Q("-107.5 deg")))
sketch2.addConstraint(Sketcher.Constraint("Angle", 5, Q("-112.5 deg")))
sketch2.addConstraint(Sketcher.Constraint("Angle", 6, Q("-117.5 deg")))
sketch2.addConstraint(Sketcher.Constraint("Angle", 7, Q("-122.5 deg")))
sketch2.addConstraint(Sketcher.Constraint("Angle", 8, Q("-127.5 deg")))
pocket1 = body.newObject("PartDesign::Pocket", "Pocket")
pocket1.Profile = sketch2
pocket1.Type = "ThroughAll"
pocket1.Midplane = True

doc.recompute()
